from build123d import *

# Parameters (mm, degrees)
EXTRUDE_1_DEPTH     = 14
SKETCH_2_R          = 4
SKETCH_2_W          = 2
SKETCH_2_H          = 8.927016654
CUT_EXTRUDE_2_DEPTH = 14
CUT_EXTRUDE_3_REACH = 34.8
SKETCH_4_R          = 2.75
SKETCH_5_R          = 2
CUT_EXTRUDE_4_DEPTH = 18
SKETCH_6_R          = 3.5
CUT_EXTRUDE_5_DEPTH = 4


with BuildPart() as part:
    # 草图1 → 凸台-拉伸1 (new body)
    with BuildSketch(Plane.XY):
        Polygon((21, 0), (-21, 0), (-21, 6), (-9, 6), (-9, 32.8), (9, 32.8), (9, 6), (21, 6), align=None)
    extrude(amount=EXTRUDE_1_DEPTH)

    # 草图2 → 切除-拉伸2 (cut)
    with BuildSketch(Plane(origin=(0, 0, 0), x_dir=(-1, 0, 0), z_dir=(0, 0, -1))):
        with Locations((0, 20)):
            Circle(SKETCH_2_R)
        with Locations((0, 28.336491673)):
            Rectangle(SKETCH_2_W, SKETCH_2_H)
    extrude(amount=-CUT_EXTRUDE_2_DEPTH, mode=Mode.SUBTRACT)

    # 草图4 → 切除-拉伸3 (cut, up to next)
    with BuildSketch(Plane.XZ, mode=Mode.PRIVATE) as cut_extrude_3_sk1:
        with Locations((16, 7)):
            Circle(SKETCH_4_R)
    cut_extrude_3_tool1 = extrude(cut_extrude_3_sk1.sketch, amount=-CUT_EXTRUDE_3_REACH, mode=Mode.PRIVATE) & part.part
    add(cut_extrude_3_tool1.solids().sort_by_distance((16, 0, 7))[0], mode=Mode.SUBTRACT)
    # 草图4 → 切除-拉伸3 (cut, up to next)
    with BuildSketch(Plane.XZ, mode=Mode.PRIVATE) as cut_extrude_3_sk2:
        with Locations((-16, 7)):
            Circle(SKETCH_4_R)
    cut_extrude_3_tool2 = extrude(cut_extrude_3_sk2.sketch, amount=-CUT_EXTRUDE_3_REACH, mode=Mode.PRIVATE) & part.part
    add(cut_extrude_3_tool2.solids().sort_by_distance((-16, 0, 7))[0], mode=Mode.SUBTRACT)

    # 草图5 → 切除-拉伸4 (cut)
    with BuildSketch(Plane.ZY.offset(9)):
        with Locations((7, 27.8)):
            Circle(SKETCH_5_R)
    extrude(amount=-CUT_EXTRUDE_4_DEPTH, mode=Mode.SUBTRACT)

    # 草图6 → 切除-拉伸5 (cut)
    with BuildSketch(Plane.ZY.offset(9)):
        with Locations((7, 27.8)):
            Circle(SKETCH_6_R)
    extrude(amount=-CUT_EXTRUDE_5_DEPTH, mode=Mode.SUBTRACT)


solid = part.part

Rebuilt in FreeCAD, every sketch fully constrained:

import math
import FreeCAD as App
import Part
import Sketcher

V = App.Vector
Q = App.Units.Quantity

doc = App.newDocument("Part")
body = doc.addObject("PartDesign::Body", "Body")

sketch1 = body.newObject("Sketcher::SketchObject", "Sketch")
sketch1.AttachmentSupport = (doc.getObject("XY_Plane"), [""])
sketch1.MapMode = "FlatFace"
sketch1.addGeometry([
    Part.LineSegment(V(-21, 0, 0), V(21, 0, 0)),
    Part.LineSegment(V(21, 0, 0), V(21, 6, 0)),
    Part.LineSegment(V(21, 6, 0), V(9, 6, 0)),
    Part.LineSegment(V(9, 6, 0), V(9, 32.8, 0)),
    Part.LineSegment(V(9, 32.8, 0), V(-9, 32.8, 0)),
    Part.LineSegment(V(-9, 32.8, 0), V(-9, 6, 0)),
    Part.LineSegment(V(-9, 6, 0), V(-21, 6, 0)),
    Part.LineSegment(V(-21, 6, 0), V(-21, 0, 0)),
], False)
sketch1.addConstraint([
    Sketcher.Constraint("Coincident", 0, 2, 1, 1),
    Sketcher.Constraint("Coincident", 1, 2, 2, 1),
    Sketcher.Constraint("Coincident", 2, 2, 3, 1),
    Sketcher.Constraint("Coincident", 3, 2, 4, 1),
    Sketcher.Constraint("Coincident", 4, 2, 5, 1),
    Sketcher.Constraint("Coincident", 5, 2, 6, 1),
    Sketcher.Constraint("Coincident", 6, 2, 7, 1),
    Sketcher.Constraint("Coincident", 7, 2, 0, 1),
    Sketcher.Constraint("Horizontal", 0),
    Sketcher.Constraint("Vertical", 1),
    Sketcher.Constraint("Horizontal", 2),
    Sketcher.Constraint("Vertical", 3),
    Sketcher.Constraint("Horizontal", 4),
    Sketcher.Constraint("Vertical", 5),
    Sketcher.Constraint("Horizontal", 6),
    Sketcher.Constraint("Vertical", 7),
    Sketcher.Constraint("Symmetric", 0, 2, 7, 2, -1, 1),
    Sketcher.Constraint("Symmetric", 2, 2, 5, 2, -2),
    Sketcher.Constraint("DistanceX", 0, 1, 0, 2, Q("42 mm")),
    Sketcher.Constraint("DistanceX", 2, 2, 2, 1, Q("12 mm")),
    Sketcher.Constraint("DistanceY", 1, 1, 1, 2, Q("6 mm")),
    Sketcher.Constraint("DistanceY", 3, 1, 3, 2, Q("26.8 mm")),
])
pad1 = body.newObject("PartDesign::Pad", "Pad")
pad1.Profile = sketch1
pad1.Length = 14

sketch2 = body.newObject("Sketcher::SketchObject", "Sketch001")
sketch2.AttachmentSupport = (doc.getObject("XY_Plane"), [""])
sketch2.MapMode = "FlatFace"
sketch2.addGeometry([
    Part.ArcOfCircle(Part.Circle(V(0, 20, 0), V(0, 0, 1), 4), math.radians(104.477512), math.radians(435.522488)),
    Part.LineSegment(V(-1, 23.872983, 0), V(-1, 32.8, 0)),
    Part.LineSegment(V(-1, 32.8, 0), V(1, 32.8, 0)),
    Part.LineSegment(V(1, 32.8, 0), V(1, 23.872983, 0)),
], False)
sketch2.addConstraint([
    Sketcher.Constraint("Coincident", 0, 1, 1, 1),
    Sketcher.Constraint("Coincident", 1, 2, 2, 1),
    Sketcher.Constraint("Coincident", 2, 2, 3, 1),
    Sketcher.Constraint("Coincident", 3, 2, 0, 2),
    Sketcher.Constraint("Vertical", 1),
    Sketcher.Constraint("Horizontal", 2),
    Sketcher.Constraint("Vertical", 3),
    Sketcher.Constraint("Symmetric", 0, 1, 3, 2, -2),
    Sketcher.Constraint("Radius", 0, Q("4 mm")),
    Sketcher.Constraint("DistanceX", 2, 1, 2, 2, Q("2 mm")),
    Sketcher.Constraint("DistanceY", -1, 1, 0, 3, Q("20 mm")),
    Sketcher.Constraint("DistanceY", -1, 1, 1, 2, Q("32.8 mm")),
])
pocket1 = body.newObject("PartDesign::Pocket", "Pocket")
pocket1.Profile = sketch2
pocket1.Length = 14
pocket1.Reversed = True

sketch3 = body.newObject("Sketcher::SketchObject", "Sketch002")
sketch3.AttachmentSupport = (doc.getObject("XZ_Plane"), [""])
sketch3.MapMode = "FlatFace"
sketch3.addGeometry(Part.Circle(V(16, 7, 0), V(0, 0, 1), 2.75), False)
sketch3.addConstraint([
    Sketcher.Constraint("Diameter", 0, Q("5.5 mm")),
    Sketcher.Constraint("DistanceX", -1, 1, 0, 3, Q("16 mm")),
    Sketcher.Constraint("DistanceY", -1, 1, 0, 3, Q("7 mm")),
])
pocket2 = body.newObject("PartDesign::Pocket", "Pocket001")
pocket2.Profile = sketch3
pocket2.Type = "UpToFirst"

sketch4 = body.newObject("Sketcher::SketchObject", "Sketch003")
sketch4.AttachmentSupport = (doc.getObject("XZ_Plane"), [""])
sketch4.MapMode = "FlatFace"
sketch4.addGeometry(Part.Circle(V(-16, 7, 0), V(0, 0, 1), 2.75), False)
sketch4.addConstraint([
    Sketcher.Constraint("Diameter", 0, Q("5.5 mm")),
    Sketcher.Constraint("DistanceX", 0, 3, -1, 1, Q("16 mm")),
    Sketcher.Constraint("DistanceY", -1, 1, 0, 3, Q("7 mm")),
])
pocket3 = body.newObject("PartDesign::Pocket", "Pocket002")
pocket3.Profile = sketch4
pocket3.Type = "UpToFirst"

sketch5 = body.newObject("Sketcher::SketchObject", "Sketch004")
sketch5.AttachmentSupport = (doc.getObject("YZ_Plane"), [""])
sketch5.MapMode = "FlatFace"
sketch5.AttachmentOffset = App.Placement(V(0, 0, -9), App.Rotation())
sketch5.addGeometry(Part.Circle(V(27.8, 7, 0), V(0, 0, 1), 2), False)
sketch5.addConstraint([
    Sketcher.Constraint("Diameter", 0, Q("4 mm")),
    Sketcher.Constraint("DistanceY", -1, 1, 0, 3, Q("7 mm")),
    Sketcher.Constraint("DistanceX", -1, 1, 0, 3, Q("27.8 mm")),
])
pocket4 = body.newObject("PartDesign::Pocket", "Pocket003")
pocket4.Profile = sketch5
pocket4.Length = 18
pocket4.Reversed = True

sketch6 = body.newObject("Sketcher::SketchObject", "Sketch005")
sketch6.AttachmentSupport = (doc.getObject("YZ_Plane"), [""])
sketch6.MapMode = "FlatFace"
sketch6.AttachmentOffset = App.Placement(V(0, 0, -9), App.Rotation())
sketch6.addGeometry(Part.Circle(V(27.8, 7, 0), V(0, 0, 1), 3.5), False)
sketch6.addConstraint([
    Sketcher.Constraint("Diameter", 0, Q("7 mm")),
    Sketcher.Constraint("DistanceY", -1, 1, 0, 3, Q("7 mm")),
    Sketcher.Constraint("DistanceX", -1, 1, 0, 3, Q("27.8 mm")),
])
pocket5 = body.newObject("PartDesign::Pocket", "Pocket004")
pocket5.Profile = sketch6
pocket5.Length = 4
pocket5.Reversed = True

doc.recompute()
